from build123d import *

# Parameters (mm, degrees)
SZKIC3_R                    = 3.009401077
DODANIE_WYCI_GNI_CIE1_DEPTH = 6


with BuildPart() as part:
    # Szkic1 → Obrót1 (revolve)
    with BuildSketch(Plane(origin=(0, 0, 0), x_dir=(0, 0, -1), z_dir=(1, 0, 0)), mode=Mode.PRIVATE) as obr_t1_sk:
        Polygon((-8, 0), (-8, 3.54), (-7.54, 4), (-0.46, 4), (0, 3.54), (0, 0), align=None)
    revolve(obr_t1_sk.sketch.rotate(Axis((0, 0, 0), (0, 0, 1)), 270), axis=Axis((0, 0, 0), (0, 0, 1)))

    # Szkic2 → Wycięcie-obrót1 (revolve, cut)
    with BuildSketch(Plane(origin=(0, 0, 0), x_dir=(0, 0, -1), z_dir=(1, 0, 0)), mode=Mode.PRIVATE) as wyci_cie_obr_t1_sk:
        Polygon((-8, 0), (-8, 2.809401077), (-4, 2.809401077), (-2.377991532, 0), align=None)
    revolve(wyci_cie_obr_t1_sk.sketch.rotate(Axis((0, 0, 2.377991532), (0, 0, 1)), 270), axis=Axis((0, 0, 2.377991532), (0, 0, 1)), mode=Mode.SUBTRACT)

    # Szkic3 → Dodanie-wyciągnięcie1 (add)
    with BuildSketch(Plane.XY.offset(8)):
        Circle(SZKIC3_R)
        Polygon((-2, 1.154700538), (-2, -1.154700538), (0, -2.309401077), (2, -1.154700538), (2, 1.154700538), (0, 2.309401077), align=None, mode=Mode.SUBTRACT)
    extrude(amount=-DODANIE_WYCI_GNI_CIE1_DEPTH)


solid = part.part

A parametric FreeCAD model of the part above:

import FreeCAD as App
import Part
import Sketcher
from FreeCAD import Vector
Q = App.Units.Quantity

doc = App.newDocument("Part")
body = doc.addObject("PartDesign::Body", "Body")

# Sketch on YZ plane
sketch1 = body.newObject("Sketcher::SketchObject", "Sketch")
sketch1.AttachmentSupport = (doc.getObject("YZ_Plane"), [""])
sketch1.MapMode = "FlatFace"
sketch1.addGeometry([
    Part.LineSegment(Vector(3.5, 8, 0), Vector(0, 8, 0)),  # 0
    Part.LineSegment(Vector(0, 8, 0), Vector(0, 0, 0)),  # 1
    Part.LineSegment(Vector(0, 0, 0), Vector(3.5, 0, 0)),  # 2
    Part.LineSegment(Vector(3.5, 0, 0), Vector(4, 0.5, 0)),  # 3
    Part.LineSegment(Vector(4, 0.5, 0), Vector(4, 7.5, 0)),  # 4
    Part.LineSegment(Vector(4, 7.5, 0), Vector(3.5, 8, 0)),  # 5
], False)
sketch1.addConstraint([
    Sketcher.Constraint("Coincident", 0, 2, 1, 1),
    Sketcher.Constraint("Coincident", 1, 2, 2, 1),
    Sketcher.Constraint("Coincident", 2, 2, 3, 1),
    Sketcher.Constraint("Coincident", 3, 2, 4, 1),
    Sketcher.Constraint("Coincident", 4, 2, 5, 1),
    Sketcher.Constraint("Coincident", 5, 2, 0, 1),
    Sketcher.Constraint("Horizontal", 0),
    Sketcher.Constraint("Vertical", 1),
    Sketcher.Constraint("Horizontal", 2),
    Sketcher.Constraint("Vertical", 4),
    Sketcher.Constraint("Coincident", 1, 2, -1, 1),
    Sketcher.Constraint("Perpendicular", 3, 5),
    Sketcher.Constraint("Vertical", 2, 2, 5, 2),
    Sketcher.Constraint("Equal", 3, 5),
    Sketcher.Constraint("DistanceY", 1, 2, 1, 1, 8.0),
    Sketcher.Constraint("DistanceX", -1, 1, 3, 2, 4.0),
    Sketcher.Constraint("DistanceX", 0, 2, 0, 1, 3.54),
])
revolution = body.newObject("PartDesign::Revolution", "Revolution")
revolution.Profile = sketch1
revolution.ReferenceAxis = (sketch1, ["V_Axis"])
revolution.Angle = 360

# Sketch on YZ plane
sketch2 = body.newObject("Sketcher::SketchObject", "Sketch001")
sketch2.AttachmentSupport = (doc.getObject("YZ_Plane"), [""])
sketch2.MapMode = "FlatFace"
sketch2.addGeometry([
    Part.LineSegment(Vector(2.8, 8, 0), Vector(0, 8, 0)),
    Part.LineSegment(Vector(0, 8, 0), Vector(0, 2.4, 0)),
    Part.LineSegment(Vector(0, 2.4, 0), Vector(2.8, 4, 0)),
    Part.LineSegment(Vector(2.8, 4, 0), Vector(2.8, 8, 0)),
], False)
sketch2.addConstraint([
    Sketcher.Constraint("Coincident", 0, 2, 1, 1),
    Sketcher.Constraint("Coincident", 1, 2, 2, 1),
    Sketcher.Constraint("Coincident", 2, 2, 3, 1),
    Sketcher.Constraint("Coincident", 3, 2, 0, 1),
    Sketcher.Constraint("Horizontal", 0),
    Sketcher.Constraint("Vertical", 1),
    Sketcher.Constraint("Vertical", 3),
    Sketcher.Constraint("PointOnObject", 0, 2, -2),
    Sketcher.Constraint("DistanceY", 3, 1, 3, 2, 4.0),
    Sketcher.Constraint("Angle", 2, Q("30 deg")),
    Sketcher.Constraint("DistanceY", -1, 1, 0, 2, 8.0),
    Sketcher.Constraint("DistanceX", 0, 2, 0, 1, 2.809401),
])
groove = body.newObject("PartDesign::Groove", "Groove")
groove.Profile = sketch2
groove.ReferenceAxis = (sketch2, ["V_Axis"])
groove.Angle = 360

# Sketch on XY plane
sketch3 = body.newObject("Sketcher::SketchObject", "Sketch002")
sketch3.AttachmentSupport = (doc.getObject("XY_Plane"), [""])
sketch3.MapMode = "FlatFace"
sketch3.AttachmentOffset = App.Placement(Vector(0, 0, 8), App.Rotation())
sketch3.addGeometry([
    Part.Circle(Vector(0, 0, 0), Vector(0, 0, 1), 3),  # 0
    Part.LineSegment(Vector(-2, -1.2, 0), Vector(-2, 1.2, 0)),  # 1
    Part.LineSegment(Vector(-2, 1.2, 0), Vector(0, 2.3, 0)),  # 2
    Part.LineSegment(Vector(0, 2.3, 0), Vector(2, 1.2, 0)),  # 3
    Part.LineSegment(Vector(2, 1.2, 0), Vector(2, -1.2, 0)),  # 4
    Part.LineSegment(Vector(2, -1.2, 0), Vector(0, -2.3, 0)),  # 5
    Part.LineSegment(Vector(0, -2.3, 0), Vector(-2, -1.2, 0)),  # 6
], False)
sketch3.addConstraint([
    Sketcher.Constraint("Coincident", 1, 2, 2, 1),
    Sketcher.Constraint("Coincident", 2, 2, 3, 1),
    Sketcher.Constraint("Coincident", 3, 2, 4, 1),
    Sketcher.Constraint("Coincident", 4, 2, 5, 1),
    Sketcher.Constraint("Coincident", 5, 2, 6, 1),
    Sketcher.Constraint("Coincident", 6, 2, 1, 1),
    Sketcher.Constraint("Vertical", 1),
    Sketcher.Constraint("Vertical", 4),
    Sketcher.Constraint("Coincident", 0, 3, -1, 1),
    Sketcher.Constraint("Symmetric", 1, 2, 4, 2, -1, 1),
    Sketcher.Constraint("Symmetric", 2, 2, 5, 2, -1, 1),
    Sketcher.Constraint("PointOnObject", 2, 2, -2),
    Sketcher.Constraint("Parallel", 3, 6),
    Sketcher.Constraint("Horizontal", 1, 2, 3, 2),
    Sketcher.Constraint("Angle", 2, Q("30 deg")),
    Sketcher.Constraint("DistanceX", 1, 2, -1, 1, 2.0),
    Sketcher.Constraint("Diameter", 0, 6.018802),
    Sketcher.Constraint("DistanceY", 1, 1, 1, 2, 2.309401),
])
pad1 = body.newObject("PartDesign::Pad", "Pad")
pad1.Profile = sketch3
pad1.Length = 6
pad1.Reversed = True

doc.recompute()
